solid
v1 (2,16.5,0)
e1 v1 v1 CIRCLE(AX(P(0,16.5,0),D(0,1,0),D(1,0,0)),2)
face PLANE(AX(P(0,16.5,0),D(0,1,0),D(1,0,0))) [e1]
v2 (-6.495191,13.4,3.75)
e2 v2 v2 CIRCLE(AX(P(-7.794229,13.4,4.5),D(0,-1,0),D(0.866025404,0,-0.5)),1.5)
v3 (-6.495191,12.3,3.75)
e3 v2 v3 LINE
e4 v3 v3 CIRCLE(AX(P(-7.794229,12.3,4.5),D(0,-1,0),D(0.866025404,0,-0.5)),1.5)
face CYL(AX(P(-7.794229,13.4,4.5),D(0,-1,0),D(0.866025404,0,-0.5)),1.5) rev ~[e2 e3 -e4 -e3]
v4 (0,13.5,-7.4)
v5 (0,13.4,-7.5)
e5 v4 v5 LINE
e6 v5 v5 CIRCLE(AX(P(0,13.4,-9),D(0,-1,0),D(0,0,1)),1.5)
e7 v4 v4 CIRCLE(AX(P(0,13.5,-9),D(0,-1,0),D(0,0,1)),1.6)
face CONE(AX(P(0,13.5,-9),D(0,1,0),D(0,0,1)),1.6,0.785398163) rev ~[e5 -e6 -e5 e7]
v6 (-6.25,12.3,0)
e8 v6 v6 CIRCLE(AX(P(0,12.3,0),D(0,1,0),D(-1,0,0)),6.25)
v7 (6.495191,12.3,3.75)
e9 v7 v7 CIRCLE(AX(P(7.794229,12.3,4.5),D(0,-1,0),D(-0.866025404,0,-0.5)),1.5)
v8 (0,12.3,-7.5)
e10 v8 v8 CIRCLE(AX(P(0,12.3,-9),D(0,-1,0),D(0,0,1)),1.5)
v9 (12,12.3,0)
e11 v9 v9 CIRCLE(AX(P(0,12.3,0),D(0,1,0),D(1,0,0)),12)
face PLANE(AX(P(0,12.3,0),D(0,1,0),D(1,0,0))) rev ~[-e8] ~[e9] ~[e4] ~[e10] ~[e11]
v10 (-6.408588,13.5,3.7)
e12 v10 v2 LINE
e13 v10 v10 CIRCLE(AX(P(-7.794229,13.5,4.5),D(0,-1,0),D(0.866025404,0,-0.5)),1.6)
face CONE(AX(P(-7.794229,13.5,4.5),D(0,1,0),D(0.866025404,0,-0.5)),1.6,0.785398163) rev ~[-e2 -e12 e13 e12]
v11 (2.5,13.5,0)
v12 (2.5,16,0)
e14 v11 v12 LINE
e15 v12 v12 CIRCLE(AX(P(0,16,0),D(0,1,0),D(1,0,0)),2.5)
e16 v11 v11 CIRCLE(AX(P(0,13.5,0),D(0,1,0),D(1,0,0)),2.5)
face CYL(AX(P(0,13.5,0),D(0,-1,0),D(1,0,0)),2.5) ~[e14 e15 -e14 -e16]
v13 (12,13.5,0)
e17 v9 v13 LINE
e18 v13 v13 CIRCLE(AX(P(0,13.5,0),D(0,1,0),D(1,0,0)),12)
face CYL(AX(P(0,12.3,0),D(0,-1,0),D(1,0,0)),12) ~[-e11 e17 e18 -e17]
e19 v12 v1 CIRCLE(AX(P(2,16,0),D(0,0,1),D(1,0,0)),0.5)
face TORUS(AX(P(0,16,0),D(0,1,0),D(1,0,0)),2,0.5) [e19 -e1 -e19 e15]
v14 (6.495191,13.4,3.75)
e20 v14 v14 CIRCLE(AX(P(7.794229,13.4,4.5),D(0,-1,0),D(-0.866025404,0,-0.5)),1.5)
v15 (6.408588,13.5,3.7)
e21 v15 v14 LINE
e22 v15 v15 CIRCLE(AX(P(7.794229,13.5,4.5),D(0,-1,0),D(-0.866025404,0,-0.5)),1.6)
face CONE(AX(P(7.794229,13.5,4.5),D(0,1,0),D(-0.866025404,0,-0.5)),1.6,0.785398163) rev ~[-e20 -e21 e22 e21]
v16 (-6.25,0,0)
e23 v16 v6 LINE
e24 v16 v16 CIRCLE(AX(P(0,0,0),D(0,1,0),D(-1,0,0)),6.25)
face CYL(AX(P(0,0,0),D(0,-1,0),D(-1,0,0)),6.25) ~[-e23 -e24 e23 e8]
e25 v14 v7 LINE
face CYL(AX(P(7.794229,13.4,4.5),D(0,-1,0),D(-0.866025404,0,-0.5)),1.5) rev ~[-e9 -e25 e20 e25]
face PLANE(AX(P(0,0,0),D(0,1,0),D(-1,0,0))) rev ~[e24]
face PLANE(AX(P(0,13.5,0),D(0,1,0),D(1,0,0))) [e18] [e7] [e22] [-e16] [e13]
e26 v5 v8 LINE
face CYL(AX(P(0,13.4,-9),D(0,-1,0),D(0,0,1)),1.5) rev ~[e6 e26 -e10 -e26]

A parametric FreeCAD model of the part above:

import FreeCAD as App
import Part
import Sketcher
from FreeCAD import Vector
Q = App.Units.Quantity


def edges_at(feature, points):
    """Names of the edges that pass closest to the given points."""
    edges = feature.Shape.Edges
    near = lambda p: min(range(len(edges)), key=lambda i: edges[i].distToShape(Part.Vertex(*p))[0])
    return sorted({f"Edge{near(p) + 1}" for p in points})

doc = App.newDocument("Part")
params = doc.addObject("Spreadsheet::Sheet", "Params")
for row, (alias, value) in enumerate([
    ("sketch1_diameter", "12.5 mm"),
    ("pad1_length", "12.3 mm"),
    ("sketch2_diameter", "24 mm"),
    ("pad2_length", "1.2 mm"),
    ("sketch3_diameter", "3 mm"),
    ("hole_diameter", "3 mm"),
    ("hole_csink_diameter", "3.2 mm"),
    ("sketch4_diameter", "5 mm"),
    ("pad3_length", "3 mm"),
    ("fillet_radius", "0.5 mm"),
], start=1):
    params.set(f"A{row}", alias)
    params.set(f"B{row}", "=" + value)
    params.setAlias(f"B{row}", alias)

body = doc.addObject("PartDesign::Body", "Body")

# Sketch on XZ plane
sketch1 = body.newObject("Sketcher::SketchObject", "Sketch")
sketch1.AttachmentSupport = (doc.getObject("XZ_Plane"), [""])
sketch1.MapMode = "FlatFace"
sketch1.addGeometry(Part.Circle(Vector(0, 0, 0), Vector(0, 0, 1), 6), False)
sketch1.addConstraint([
    Sketcher.Constraint("Coincident", 0, 3, -1, 1),
    Sketcher.Constraint("Diameter", 0, Q("12.5 mm")),
])
sketch1.setExpression("Constraints[1]", "Params.sketch1_diameter")
pad1 = body.newObject("PartDesign::Pad", "Pad")
pad1.Profile = sketch1
pad1.setExpression("Length", "Params.pad1_length")
pad1.Reversed = True

# Sketch on XZ plane
sketch2 = body.newObject("Sketcher::SketchObject", "Sketch001")
sketch2.AttachmentSupport = (doc.getObject("XZ_Plane"), [""])
sketch2.MapMode = "FlatFace"
sketch2.AttachmentOffset = App.Placement(Vector(0, 0, -12.3), App.Rotation())
sketch2.addGeometry(Part.Circle(Vector(0, 0, 0), Vector(0, 0, 1), 12), False)
sketch2.addConstraint([
    Sketcher.Constraint("Coincident", 0, 3, -1, 1),
    Sketcher.Constraint("Diameter", 0, Q("24 mm")),
])
sketch2.setExpression("Constraints[1]", "Params.sketch2_diameter")
pad2 = body.newObject("PartDesign::Pad", "Pad001")
pad2.Profile = sketch2
pad2.setExpression("Length", "Params.pad2_length")
pad2.Reversed = True

# Sketch on XZ plane
sketch3 = body.newObject("Sketcher::SketchObject", "Sketch002")
sketch3.AttachmentSupport = (doc.getObject("XZ_Plane"), [""])
sketch3.MapMode = "FlatFace"
sketch3.AttachmentOffset = App.Placement(Vector(0, 0, -13.5), App.Rotation())
sketch3.addGeometry(Part.Circle(Vector(0, -9, 0), Vector(0, 0, 1), 1.5), False)
sketch3.addConstraint([
    Sketcher.Constraint("PointOnObject", 0, 3, -2),
    Sketcher.Constraint("Diameter", 0, Q("3 mm")),
    Sketcher.Constraint("DistanceY", 0, 3, -1, 1, Q("9 mm")),
])
sketch3.setExpression("Constraints[1]", "Params.sketch3_diameter")
doc.recompute()
hole = body.newObject("PartDesign::Hole", "Hole")
hole.Profile = sketch3
hole.ThreadType = "None"
hole.setExpression("Diameter", "Params.hole_diameter")
hole.DepthType = "ThroughAll"
hole.HoleCutType = "Countersink"
hole.setExpression("HoleCutDiameter", "Params.hole_csink_diameter")
hole.HoleCutCountersinkAngle = 90
hole.Reversed = True
doc.recompute()

polarpattern = body.newObject("PartDesign::PolarPattern", "PolarPattern")
polarpattern.Originals = [hole]
polarpattern.Axis = (doc.getObject("Y_Axis"), [""])
polarpattern.Angle = 360
polarpattern.Occurrences = 3
body.Tip = polarpattern

# Sketch on XZ plane
sketch4 = body.newObject("Sketcher::SketchObject", "Sketch003")
sketch4.AttachmentSupport = (doc.getObject("XZ_Plane"), [""])
sketch4.MapMode = "FlatFace"
sketch4.AttachmentOffset = App.Placement(Vector(0, 0, -13.5), App.Rotation())
sketch4.addGeometry(Part.Circle(Vector(0, 0, 0), Vector(0, 0, 1), 2.5), False)
sketch4.addConstraint([
    Sketcher.Constraint("Coincident", 0, 3, -1, 1),
    Sketcher.Constraint("Diameter", 0, Q("5 mm")),
])
sketch4.setExpression("Constraints[1]", "Params.sketch4_diameter")
pad3 = body.newObject("PartDesign::Pad", "Pad002")
pad3.Profile = sketch4
pad3.setExpression("Length", "Params.pad3_length")
pad3.Reversed = True
doc.recompute()

fillet = body.newObject("PartDesign::Fillet", "Fillet")
fillet.Base = (pad3, edges_at(pad3, [(-2.5, 16.5, 0)]))
fillet.setExpression("Radius", "Params.fillet_radius")

doc.recompute()
